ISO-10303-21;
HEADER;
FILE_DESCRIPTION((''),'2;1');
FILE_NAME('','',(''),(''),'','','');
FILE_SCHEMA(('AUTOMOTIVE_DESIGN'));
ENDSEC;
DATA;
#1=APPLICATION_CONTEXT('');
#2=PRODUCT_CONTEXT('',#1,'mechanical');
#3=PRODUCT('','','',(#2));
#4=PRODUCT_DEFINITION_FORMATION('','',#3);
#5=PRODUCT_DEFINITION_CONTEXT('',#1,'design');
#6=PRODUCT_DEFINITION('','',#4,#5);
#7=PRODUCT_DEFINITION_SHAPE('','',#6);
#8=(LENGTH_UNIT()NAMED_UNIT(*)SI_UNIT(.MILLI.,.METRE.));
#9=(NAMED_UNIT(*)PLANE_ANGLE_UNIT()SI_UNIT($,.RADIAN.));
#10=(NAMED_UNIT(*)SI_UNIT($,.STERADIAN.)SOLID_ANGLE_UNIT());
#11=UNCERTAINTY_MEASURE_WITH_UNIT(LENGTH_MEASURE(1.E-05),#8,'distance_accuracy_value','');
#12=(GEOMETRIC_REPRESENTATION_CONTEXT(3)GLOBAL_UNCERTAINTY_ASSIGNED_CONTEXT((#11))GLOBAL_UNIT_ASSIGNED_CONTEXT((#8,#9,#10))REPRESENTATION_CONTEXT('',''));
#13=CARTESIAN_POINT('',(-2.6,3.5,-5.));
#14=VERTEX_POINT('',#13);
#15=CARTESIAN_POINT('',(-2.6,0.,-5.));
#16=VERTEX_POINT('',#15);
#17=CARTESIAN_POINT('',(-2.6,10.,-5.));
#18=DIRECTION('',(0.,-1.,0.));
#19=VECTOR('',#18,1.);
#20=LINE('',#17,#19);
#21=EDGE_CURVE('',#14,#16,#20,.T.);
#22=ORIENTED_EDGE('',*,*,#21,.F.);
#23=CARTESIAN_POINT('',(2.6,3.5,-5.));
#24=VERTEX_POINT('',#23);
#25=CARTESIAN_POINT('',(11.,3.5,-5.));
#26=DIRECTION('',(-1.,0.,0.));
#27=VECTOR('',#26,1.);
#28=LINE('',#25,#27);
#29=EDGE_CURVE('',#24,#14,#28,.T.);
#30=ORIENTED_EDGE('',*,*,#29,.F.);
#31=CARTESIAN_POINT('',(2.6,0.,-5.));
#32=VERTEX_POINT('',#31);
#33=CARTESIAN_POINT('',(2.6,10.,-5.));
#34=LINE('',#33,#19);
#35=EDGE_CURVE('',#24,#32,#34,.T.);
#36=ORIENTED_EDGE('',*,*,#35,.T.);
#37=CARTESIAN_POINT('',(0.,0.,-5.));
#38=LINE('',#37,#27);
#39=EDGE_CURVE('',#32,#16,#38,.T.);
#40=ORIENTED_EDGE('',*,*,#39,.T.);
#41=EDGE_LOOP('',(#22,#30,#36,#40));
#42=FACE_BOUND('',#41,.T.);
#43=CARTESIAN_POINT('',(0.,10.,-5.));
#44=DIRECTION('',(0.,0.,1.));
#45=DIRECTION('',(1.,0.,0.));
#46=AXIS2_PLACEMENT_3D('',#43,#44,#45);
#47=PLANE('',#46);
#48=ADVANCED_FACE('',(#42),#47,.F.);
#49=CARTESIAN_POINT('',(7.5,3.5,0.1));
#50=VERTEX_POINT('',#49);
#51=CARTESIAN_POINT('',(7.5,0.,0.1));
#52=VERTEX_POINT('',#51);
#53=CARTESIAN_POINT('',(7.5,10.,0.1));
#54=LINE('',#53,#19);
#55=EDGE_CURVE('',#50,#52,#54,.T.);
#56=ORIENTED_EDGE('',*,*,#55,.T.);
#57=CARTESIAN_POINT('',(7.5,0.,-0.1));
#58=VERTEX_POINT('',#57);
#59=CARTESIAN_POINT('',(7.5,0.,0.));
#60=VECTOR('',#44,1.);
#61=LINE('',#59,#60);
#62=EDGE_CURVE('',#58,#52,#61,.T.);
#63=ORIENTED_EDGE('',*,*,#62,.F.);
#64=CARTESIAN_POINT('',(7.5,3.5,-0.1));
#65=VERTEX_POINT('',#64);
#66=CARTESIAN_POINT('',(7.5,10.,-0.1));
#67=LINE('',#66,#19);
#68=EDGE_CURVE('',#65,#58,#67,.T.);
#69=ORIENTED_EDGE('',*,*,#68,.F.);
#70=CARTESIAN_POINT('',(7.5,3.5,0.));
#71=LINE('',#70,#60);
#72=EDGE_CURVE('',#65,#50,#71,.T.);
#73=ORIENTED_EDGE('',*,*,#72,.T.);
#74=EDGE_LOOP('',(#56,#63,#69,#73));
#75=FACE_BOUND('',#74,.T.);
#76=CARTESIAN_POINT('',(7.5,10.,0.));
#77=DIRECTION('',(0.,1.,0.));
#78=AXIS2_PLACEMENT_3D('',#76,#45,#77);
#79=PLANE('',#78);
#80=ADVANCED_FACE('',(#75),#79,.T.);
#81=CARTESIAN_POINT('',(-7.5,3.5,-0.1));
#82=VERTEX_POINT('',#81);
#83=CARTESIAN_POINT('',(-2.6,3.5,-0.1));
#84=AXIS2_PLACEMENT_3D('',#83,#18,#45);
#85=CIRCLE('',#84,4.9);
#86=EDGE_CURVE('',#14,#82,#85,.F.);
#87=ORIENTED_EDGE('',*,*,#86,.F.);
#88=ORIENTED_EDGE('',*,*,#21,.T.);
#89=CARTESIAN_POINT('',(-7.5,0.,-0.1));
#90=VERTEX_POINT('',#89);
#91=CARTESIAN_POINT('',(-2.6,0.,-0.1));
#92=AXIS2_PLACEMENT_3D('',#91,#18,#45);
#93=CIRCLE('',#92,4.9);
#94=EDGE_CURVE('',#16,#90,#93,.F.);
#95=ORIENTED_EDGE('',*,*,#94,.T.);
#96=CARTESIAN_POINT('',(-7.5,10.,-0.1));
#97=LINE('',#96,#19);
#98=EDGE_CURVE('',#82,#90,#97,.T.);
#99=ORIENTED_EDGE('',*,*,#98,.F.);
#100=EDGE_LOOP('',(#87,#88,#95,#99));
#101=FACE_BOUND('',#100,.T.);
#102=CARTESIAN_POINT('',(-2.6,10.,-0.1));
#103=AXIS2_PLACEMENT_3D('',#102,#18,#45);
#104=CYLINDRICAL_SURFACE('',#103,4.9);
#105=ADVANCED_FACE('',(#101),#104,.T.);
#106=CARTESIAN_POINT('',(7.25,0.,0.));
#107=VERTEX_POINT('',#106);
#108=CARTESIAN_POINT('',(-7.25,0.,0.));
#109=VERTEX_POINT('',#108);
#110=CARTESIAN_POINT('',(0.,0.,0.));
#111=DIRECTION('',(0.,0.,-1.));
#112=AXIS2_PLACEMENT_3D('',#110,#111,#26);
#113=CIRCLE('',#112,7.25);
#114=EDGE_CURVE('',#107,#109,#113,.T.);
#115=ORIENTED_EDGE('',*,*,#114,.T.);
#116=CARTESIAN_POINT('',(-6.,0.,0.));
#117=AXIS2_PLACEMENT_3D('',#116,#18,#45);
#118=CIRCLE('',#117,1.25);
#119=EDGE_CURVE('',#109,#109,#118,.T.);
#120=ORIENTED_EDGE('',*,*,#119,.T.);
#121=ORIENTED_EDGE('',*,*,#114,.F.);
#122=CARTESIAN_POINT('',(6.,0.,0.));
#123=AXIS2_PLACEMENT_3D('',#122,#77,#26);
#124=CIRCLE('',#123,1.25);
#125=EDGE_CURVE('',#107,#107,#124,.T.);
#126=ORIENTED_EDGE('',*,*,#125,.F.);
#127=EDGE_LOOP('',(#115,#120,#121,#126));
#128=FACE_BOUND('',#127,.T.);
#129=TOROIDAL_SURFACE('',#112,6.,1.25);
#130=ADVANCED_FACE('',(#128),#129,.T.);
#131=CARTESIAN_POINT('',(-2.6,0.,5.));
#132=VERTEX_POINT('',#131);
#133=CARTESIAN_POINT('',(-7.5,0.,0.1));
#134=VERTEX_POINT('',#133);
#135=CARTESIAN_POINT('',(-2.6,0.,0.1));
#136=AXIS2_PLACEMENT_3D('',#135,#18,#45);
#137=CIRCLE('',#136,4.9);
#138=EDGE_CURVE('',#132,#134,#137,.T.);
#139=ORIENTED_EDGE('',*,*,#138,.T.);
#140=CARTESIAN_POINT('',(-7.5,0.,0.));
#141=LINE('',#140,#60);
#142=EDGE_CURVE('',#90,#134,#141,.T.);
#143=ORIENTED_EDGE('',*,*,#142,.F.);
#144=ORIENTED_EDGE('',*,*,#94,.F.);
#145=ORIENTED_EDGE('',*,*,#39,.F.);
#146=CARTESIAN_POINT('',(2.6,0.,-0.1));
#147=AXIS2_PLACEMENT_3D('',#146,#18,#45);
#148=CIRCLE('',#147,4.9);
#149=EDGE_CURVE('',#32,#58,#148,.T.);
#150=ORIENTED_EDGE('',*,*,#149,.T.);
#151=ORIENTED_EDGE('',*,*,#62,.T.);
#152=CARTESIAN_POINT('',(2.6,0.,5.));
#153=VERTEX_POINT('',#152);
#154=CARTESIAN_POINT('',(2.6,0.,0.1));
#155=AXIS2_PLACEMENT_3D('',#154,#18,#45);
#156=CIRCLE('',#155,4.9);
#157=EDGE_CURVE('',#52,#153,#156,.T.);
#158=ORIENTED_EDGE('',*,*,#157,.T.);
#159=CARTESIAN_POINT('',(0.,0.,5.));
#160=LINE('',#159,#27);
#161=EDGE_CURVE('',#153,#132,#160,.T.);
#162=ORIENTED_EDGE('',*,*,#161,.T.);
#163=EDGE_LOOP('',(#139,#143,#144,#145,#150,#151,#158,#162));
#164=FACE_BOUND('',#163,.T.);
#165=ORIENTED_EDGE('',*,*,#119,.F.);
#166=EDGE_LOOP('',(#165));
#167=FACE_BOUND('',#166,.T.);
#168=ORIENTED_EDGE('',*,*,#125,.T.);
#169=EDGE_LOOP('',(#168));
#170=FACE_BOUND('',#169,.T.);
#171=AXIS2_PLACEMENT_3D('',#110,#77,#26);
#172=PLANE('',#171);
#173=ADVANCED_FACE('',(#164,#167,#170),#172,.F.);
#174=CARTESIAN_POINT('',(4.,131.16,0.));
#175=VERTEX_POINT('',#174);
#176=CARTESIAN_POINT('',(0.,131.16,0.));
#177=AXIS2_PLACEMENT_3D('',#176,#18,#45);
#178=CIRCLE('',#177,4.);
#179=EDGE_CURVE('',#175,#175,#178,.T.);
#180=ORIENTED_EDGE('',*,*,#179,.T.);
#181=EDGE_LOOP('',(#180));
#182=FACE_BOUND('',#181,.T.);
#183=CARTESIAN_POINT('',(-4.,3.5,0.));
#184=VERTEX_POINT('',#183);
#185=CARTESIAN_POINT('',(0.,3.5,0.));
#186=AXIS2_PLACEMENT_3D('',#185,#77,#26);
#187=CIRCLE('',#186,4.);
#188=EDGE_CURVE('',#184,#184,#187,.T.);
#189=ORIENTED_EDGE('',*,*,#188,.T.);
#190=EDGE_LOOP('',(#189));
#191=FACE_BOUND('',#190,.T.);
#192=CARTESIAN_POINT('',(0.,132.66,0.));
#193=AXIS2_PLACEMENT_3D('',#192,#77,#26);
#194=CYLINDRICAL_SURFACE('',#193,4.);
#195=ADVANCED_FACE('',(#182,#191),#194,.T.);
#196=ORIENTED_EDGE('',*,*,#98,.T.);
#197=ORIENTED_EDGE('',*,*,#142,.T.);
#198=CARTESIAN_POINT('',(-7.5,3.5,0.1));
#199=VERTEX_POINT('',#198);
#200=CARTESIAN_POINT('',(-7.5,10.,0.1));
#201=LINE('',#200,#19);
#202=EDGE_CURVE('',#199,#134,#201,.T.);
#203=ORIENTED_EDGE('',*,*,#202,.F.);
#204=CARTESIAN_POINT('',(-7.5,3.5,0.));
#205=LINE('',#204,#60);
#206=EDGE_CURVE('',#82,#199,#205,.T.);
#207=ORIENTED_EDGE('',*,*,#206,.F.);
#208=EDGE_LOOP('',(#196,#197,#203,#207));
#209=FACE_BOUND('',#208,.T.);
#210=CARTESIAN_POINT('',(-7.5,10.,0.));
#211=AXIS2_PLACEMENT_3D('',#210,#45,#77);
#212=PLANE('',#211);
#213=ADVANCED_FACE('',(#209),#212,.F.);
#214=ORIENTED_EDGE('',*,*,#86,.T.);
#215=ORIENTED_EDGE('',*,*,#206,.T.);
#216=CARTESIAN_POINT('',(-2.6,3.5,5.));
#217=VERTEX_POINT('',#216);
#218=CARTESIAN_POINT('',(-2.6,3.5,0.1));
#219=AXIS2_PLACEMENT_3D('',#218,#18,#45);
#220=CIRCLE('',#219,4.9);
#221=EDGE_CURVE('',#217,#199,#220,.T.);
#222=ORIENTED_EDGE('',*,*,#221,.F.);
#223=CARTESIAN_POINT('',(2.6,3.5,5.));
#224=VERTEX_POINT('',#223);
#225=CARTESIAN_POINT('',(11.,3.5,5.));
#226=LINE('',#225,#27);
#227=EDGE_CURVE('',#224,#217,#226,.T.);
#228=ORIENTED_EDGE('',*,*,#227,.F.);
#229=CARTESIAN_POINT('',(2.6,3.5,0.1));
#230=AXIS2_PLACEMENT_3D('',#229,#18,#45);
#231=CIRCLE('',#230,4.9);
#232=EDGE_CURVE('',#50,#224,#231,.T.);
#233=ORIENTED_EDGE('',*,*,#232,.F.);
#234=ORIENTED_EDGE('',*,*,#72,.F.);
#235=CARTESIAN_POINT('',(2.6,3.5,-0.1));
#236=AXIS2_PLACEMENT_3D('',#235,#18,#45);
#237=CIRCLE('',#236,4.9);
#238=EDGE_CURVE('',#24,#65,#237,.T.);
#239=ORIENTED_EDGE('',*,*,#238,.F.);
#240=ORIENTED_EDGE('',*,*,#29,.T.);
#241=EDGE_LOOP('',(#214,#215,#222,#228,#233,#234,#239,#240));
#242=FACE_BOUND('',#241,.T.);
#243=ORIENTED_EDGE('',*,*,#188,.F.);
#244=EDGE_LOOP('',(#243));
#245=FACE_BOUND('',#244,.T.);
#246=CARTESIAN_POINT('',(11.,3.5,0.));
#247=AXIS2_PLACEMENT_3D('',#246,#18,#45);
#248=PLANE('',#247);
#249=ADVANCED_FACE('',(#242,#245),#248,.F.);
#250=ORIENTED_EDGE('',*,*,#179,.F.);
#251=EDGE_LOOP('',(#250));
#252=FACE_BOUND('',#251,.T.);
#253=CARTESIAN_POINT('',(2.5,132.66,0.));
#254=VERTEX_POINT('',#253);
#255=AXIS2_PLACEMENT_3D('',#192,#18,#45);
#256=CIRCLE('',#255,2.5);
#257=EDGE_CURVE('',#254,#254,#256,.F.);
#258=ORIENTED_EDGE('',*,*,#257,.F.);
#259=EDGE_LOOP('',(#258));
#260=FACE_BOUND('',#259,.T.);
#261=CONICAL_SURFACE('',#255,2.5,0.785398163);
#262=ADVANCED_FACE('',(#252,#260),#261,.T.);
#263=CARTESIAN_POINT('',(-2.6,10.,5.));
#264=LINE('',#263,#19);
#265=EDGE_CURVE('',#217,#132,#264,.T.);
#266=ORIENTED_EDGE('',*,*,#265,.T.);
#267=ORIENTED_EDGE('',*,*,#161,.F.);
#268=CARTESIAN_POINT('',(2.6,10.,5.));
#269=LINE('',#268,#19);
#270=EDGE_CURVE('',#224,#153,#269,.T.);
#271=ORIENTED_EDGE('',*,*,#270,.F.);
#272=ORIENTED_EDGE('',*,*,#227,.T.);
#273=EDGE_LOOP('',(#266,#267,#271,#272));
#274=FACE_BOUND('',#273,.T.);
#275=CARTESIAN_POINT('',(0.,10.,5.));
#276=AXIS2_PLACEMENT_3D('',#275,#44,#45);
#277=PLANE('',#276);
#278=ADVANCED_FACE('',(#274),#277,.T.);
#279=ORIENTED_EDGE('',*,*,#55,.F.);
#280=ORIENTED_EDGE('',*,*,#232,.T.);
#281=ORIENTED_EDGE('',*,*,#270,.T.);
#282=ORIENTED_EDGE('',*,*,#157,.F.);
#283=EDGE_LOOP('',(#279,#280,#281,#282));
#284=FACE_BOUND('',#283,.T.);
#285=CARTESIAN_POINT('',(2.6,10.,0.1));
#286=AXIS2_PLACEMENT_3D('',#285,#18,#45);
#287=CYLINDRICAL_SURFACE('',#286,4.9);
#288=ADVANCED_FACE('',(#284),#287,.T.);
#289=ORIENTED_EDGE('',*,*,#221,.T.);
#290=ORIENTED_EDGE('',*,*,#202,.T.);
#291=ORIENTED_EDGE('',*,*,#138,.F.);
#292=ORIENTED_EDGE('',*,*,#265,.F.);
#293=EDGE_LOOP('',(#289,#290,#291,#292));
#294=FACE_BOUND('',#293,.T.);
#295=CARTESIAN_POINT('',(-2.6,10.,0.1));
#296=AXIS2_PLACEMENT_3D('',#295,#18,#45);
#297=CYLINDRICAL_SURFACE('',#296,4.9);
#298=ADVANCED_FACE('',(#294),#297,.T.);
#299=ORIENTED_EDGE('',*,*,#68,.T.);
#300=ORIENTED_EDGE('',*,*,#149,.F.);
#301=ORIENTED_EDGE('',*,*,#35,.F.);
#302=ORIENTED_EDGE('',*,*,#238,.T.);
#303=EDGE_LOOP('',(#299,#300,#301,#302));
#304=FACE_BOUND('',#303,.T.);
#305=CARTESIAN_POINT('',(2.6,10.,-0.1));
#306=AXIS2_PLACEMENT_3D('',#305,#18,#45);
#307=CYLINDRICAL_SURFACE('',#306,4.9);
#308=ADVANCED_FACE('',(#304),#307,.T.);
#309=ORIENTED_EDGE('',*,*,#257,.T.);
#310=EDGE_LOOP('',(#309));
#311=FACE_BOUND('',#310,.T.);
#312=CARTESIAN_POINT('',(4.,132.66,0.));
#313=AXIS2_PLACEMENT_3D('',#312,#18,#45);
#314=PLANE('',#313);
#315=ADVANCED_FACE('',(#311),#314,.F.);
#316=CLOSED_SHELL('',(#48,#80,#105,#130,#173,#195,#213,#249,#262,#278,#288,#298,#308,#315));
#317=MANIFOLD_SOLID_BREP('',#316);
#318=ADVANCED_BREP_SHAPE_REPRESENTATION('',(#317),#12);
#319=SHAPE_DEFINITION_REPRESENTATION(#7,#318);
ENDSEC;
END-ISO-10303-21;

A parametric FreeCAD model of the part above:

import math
import FreeCAD as App
import Part
import Sketcher
from FreeCAD import Vector


def edges_at(feature, points):
    """Names of the edges that pass closest to the given points."""
    edges = feature.Shape.Edges
    near = lambda p: min(range(len(edges)), key=lambda i: edges[i].distToShape(Part.Vertex(*p))[0])
    return sorted({f"Edge{near(p) + 1}" for p in points})


def add_polygon(sketch, points):
    """Adds a closed chain of lines whose ends are joined by coincident constraints."""
    first, n = sketch.GeometryCount, len(points)
    for a, b in zip(points, points[1:] + points[:1]):
        sketch.addGeometry(Part.LineSegment(App.Vector(*a, 0), App.Vector(*b, 0)), False)
    for i in range(n):
        sketch.addConstraint(Sketcher.Constraint("Coincident", first + i, 2, first + (i + 1) % n, 1))

doc = App.newDocument("Part")
body = doc.addObject("PartDesign::Body", "Body")

# Sketch on XY plane
sketch1 = doc.addObject("Sketcher::SketchObject", "Sketch")
body.addObject(sketch1)
sketch1.AttachmentSupport = (doc.XY_Plane, [""])
sketch1.MapMode = "FlatFace"
add_polygon(sketch1, [(0, 0), (11, 0), (11, 3.5), (4, 3.5), (4, 132.7), (0, 132.7)])  # lines 0-5
sketch1.addConstraint(Sketcher.Constraint("Horizontal", 0))
sketch1.addConstraint(Sketcher.Constraint("Vertical", 1))
sketch1.addConstraint(Sketcher.Constraint("Horizontal", 2))
sketch1.addConstraint(Sketcher.Constraint("Vertical", 3))
sketch1.addConstraint(Sketcher.Constraint("Horizontal", 4))
sketch1.addConstraint(Sketcher.Constraint("Vertical", 5))
sketch1.addConstraint(Sketcher.Constraint("Coincident", 5, 2, -1, 1))
sketch1.addConstraint(Sketcher.Constraint("DistanceX", 0, 1, 0, 2, 11.0))
sketch1.addConstraint(Sketcher.Constraint("DistanceX", 2, 2, 2, 1, 7.0))
sketch1.addConstraint(Sketcher.Constraint("DistanceY", 1, 1, 1, 2, 3.5))
sketch1.addConstraint(Sketcher.Constraint("DistanceY", 3, 1, 3, 2, 129.16))
revolution = doc.addObject("PartDesign::Revolution", "Revolution")
body.addObject(revolution)
revolution.Profile = sketch1
revolution.ReferenceAxis = (sketch1, ["V_Axis"])
revolution.Angle = 360

# Sketch on XZ plane
sketch2 = doc.addObject("Sketcher::SketchObject", "Sketch001")
body.addObject(sketch2)
sketch2.AttachmentSupport = (doc.XZ_Plane, [""])
sketch2.MapMode = "FlatFace"
sketch2.addGeometry(Part.Circle(Vector(0, 0, 0), Vector(0, 0, 1), 11), False)
sketch2.addGeometry(Part.LineSegment(Vector(7.5, 0.1, 0), Vector(7.5, -0.1, 0)), False)
sketch2.addGeometry(Part.ArcOfCircle(Part.Circle(Vector(2.6, -0.1, 0), Vector(0, 0, 1), 4.9), math.radians(-90), math.radians(0)), False)
sketch2.addGeometry(Part.LineSegment(Vector(2.6, -5, 0), Vector(-2.6, -5, 0)), False)
sketch2.addGeometry(Part.ArcOfCircle(Part.Circle(Vector(-2.6, -0.1, 0), Vector(0, 0, 1), 4.9), math.radians(180), math.radians(270)), False)
sketch2.addGeometry(Part.LineSegment(Vector(-7.5, -0.1, 0), Vector(-7.5, 0.1, 0)), False)
sketch2.addGeometry(Part.ArcOfCircle(Part.Circle(Vector(-2.6, 0.1, 0), Vector(0, 0, 1), 4.9), math.radians(90), math.radians(180)), False)
sketch2.addGeometry(Part.LineSegment(Vector(-2.6, 5, 0), Vector(2.6, 5, 0)), False)
sketch2.addGeometry(Part.ArcOfCircle(Part.Circle(Vector(2.6, 0.1, 0), Vector(0, 0, 1), 4.9), math.radians(0), math.radians(90)), False)
sketch2.addConstraint(Sketcher.Constraint("Tangent", 1, 2, 2, 2))
sketch2.addConstraint(Sketcher.Constraint("Tangent", 2, 1, 3, 1))
sketch2.addConstraint(Sketcher.Constraint("Tangent", 3, 2, 4, 2))
sketch2.addConstraint(Sketcher.Constraint("Tangent", 4, 1, 5, 1))
sketch2.addConstraint(Sketcher.Constraint("Tangent", 5, 2, 6, 2))
sketch2.addConstraint(Sketcher.Constraint("Tangent", 6, 1, 7, 1))
sketch2.addConstraint(Sketcher.Constraint("Tangent", 7, 2, 8, 2))
sketch2.addConstraint(Sketcher.Constraint("Tangent", 8, 1, 1, 1))
sketch2.addConstraint(Sketcher.Constraint("Vertical", 1))
sketch2.addConstraint(Sketcher.Constraint("Horizontal", 3))
sketch2.addConstraint(Sketcher.Constraint("Vertical", 5))
sketch2.addConstraint(Sketcher.Constraint("Horizontal", 7))
sketch2.addConstraint(Sketcher.Constraint("Coincident", 0, 3, -1, 1))
sketch2.addConstraint(Sketcher.Constraint("Equal", 2, 4))
sketch2.addConstraint(Sketcher.Constraint("Equal", 4, 6))
sketch2.addConstraint(Sketcher.Constraint("Equal", 6, 8))
sketch2.addConstraint(Sketcher.Constraint("Symmetric", 2, 3, 6, 3, -1, 1))
sketch2.addConstraint(Sketcher.Constraint("Diameter", 0, 22.0))
sketch2.addConstraint(Sketcher.Constraint("Radius", 2, 4.9))
sketch2.addConstraint(Sketcher.Constraint("DistanceX", 3, 2, 3, 1, 5.2))
sketch2.addConstraint(Sketcher.Constraint("DistanceY", 1, 2, 1, 1, 0.2))
pocket1 = doc.addObject("PartDesign::Pocket", "Pocket")
body.addObject(pocket1)
pocket1.Profile = sketch2
pocket1.Length = 10

# Sketch on XZ plane
sketch3 = doc.addObject("Sketcher::SketchObject", "Sketch002")
body.addObject(sketch3)
sketch3.AttachmentSupport = (doc.XZ_Plane, [""])
sketch3.MapMode = "FlatFace"
sketch3.addGeometry(Part.Circle(Vector(-6, 0, 0), Vector(0, 0, 1), 1.2), False)
sketch3.addConstraint(Sketcher.Constraint("PointOnObject", 0, 3, -1))
sketch3.addConstraint(Sketcher.Constraint("Diameter", 0, 2.5))
sketch3.addConstraint(Sketcher.Constraint("DistanceX", 0, 3, -1, 1, 6.0))

# Sketch on XY plane
sketch4 = doc.addObject("Sketcher::SketchObject", "Sketch003")
body.addObject(sketch4)
sketch4.AttachmentSupport = (doc.XY_Plane, [""])
sketch4.MapMode = "FlatFace"
sketch4.addGeometry(Part.ArcOfCircle(Part.Circle(Vector(0, 0, 0), Vector(0, 0, 1), 6), math.radians(180), math.radians(360)), False)
sketch4.addConstraint(Sketcher.Constraint("Coincident", 0, 3, -1, 1))
sketch4.addConstraint(Sketcher.Constraint("PointOnObject", 0, 1, -1))
sketch4.addConstraint(Sketcher.Constraint("PointOnObject", 0, 2, -1))
sketch4.addConstraint(Sketcher.Constraint("Radius", 0, 6.0))
doc.recompute()

additivepipe = doc.addObject("PartDesign::AdditivePipe", "AdditivePipe")
body.addObject(additivepipe)
additivepipe.Profile = sketch3
additivepipe.Spine = (sketch4, ["Edge1"])
doc.recompute()

chamfer = doc.addObject("PartDesign::Chamfer", "Chamfer")
body.addObject(chamfer)
chamfer.Base = (additivepipe, edges_at(additivepipe, [(-4, 132.66, 0)]))
chamfer.Size = 1.5

doc.recompute()
